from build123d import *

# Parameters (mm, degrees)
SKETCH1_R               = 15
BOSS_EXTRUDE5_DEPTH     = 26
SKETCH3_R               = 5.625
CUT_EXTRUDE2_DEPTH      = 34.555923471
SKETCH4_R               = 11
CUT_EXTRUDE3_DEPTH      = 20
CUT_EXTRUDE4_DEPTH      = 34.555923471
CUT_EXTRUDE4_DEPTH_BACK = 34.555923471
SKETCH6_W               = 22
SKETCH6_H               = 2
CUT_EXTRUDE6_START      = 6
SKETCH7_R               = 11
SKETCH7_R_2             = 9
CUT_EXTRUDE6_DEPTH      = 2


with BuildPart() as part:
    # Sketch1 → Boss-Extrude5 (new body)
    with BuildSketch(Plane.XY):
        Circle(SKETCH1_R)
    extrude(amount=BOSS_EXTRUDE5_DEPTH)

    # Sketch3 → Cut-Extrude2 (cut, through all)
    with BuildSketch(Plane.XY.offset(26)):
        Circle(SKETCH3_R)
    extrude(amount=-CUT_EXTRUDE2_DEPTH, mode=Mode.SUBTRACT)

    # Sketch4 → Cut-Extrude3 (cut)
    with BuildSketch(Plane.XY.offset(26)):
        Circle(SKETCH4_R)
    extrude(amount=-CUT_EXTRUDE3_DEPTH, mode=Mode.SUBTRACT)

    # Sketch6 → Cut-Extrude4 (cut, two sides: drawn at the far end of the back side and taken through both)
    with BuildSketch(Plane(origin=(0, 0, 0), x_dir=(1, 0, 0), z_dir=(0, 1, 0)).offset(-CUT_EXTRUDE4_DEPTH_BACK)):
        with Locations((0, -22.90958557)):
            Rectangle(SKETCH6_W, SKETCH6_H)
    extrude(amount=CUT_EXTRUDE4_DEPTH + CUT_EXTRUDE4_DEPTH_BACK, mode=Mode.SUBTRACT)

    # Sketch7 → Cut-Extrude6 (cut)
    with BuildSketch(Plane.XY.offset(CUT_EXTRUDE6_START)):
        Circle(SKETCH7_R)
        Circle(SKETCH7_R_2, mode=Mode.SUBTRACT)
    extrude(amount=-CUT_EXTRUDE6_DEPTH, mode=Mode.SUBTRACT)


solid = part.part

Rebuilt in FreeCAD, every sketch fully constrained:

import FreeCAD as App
import Part
import Sketcher
from FreeCAD import Vector


def add_polygon(sketch, points):
    """Adds a closed chain of lines whose ends are joined by coincident constraints."""
    first, n = sketch.GeometryCount, len(points)
    for a, b in zip(points, points[1:] + points[:1]):
        sketch.addGeometry(Part.LineSegment(App.Vector(*a, 0), App.Vector(*b, 0)), False)
    for i in range(n):
        sketch.addConstraint(Sketcher.Constraint("Coincident", first + i, 2, first + (i + 1) % n, 1))

doc = App.newDocument("Part")
body = doc.addObject("PartDesign::Body", "Body")

# Sketch on XY plane
sketch1 = doc.addObject("Sketcher::SketchObject", "Sketch")
body.addObject(sketch1)
sketch1.AttachmentSupport = (doc.XY_Plane, [""])
sketch1.MapMode = "FlatFace"
sketch1.addGeometry(Part.Circle(Vector(0, 0, 0), Vector(0, 0, 1), 15), False)
sketch1.addConstraint([
    Sketcher.Constraint("Coincident", 0, 3, -1, 1),
    Sketcher.Constraint("Diameter", 0, 30.0),
])
pad1 = doc.addObject("PartDesign::Pad", "Pad")
body.addObject(pad1)
pad1.Profile = sketch1
pad1.Length = 26

# Sketch on XY plane
sketch2 = doc.addObject("Sketcher::SketchObject", "Sketch001")
body.addObject(sketch2)
sketch2.AttachmentSupport = (doc.XY_Plane, [""])
sketch2.MapMode = "FlatFace"
sketch2.AttachmentOffset = App.Placement(Vector(0, 0, 26), App.Rotation())
sketch2.addGeometry(Part.Circle(Vector(0, 0, 0), Vector(0, 0, 1), 6), False)
sketch2.addConstraint([
    Sketcher.Constraint("Coincident", 0, 3, -1, 1),
    Sketcher.Constraint("Diameter", 0, 11.25),
])
pocket1 = doc.addObject("PartDesign::Pocket", "Pocket")
body.addObject(pocket1)
pocket1.Profile = sketch2
pocket1.Type = "ThroughAll"

# Sketch on XY plane
sketch3 = doc.addObject("Sketcher::SketchObject", "Sketch002")
body.addObject(sketch3)
sketch3.AttachmentSupport = (doc.XY_Plane, [""])
sketch3.MapMode = "FlatFace"
sketch3.AttachmentOffset = App.Placement(Vector(0, 0, 26), App.Rotation())
sketch3.addGeometry(Part.Circle(Vector(0, 0, 0), Vector(0, 0, 1), 11), False)
sketch3.addConstraint([
    Sketcher.Constraint("Coincident", 0, 3, -1, 1),
    Sketcher.Constraint("Diameter", 0, 22.0),
])
pocket2 = doc.addObject("PartDesign::Pocket", "Pocket001")
body.addObject(pocket2)
pocket2.Profile = sketch3
pocket2.Length = 20

# Sketch on XZ plane
sketch4 = doc.addObject("Sketcher::SketchObject", "Sketch003")
body.addObject(sketch4)
sketch4.AttachmentSupport = (doc.XZ_Plane, [""])
sketch4.MapMode = "FlatFace"
add_polygon(sketch4, [(-11, 21.9), (-11, 23.9), (11, 23.9), (11, 21.9)])  # lines 0-3
sketch4.addConstraint([
    Sketcher.Constraint("Vertical", 0),
    Sketcher.Constraint("Horizontal", 1),
    Sketcher.Constraint("Vertical", 2),
    Sketcher.Constraint("Horizontal", 3),
    Sketcher.Constraint("DistanceX", 1, 1, 1, 2, 22.0),
    Sketcher.Constraint("DistanceY", 0, 1, 0, 2, 2.0),
    Sketcher.Constraint("DistanceX", 0, 2, -1, 1, 11.0),
    Sketcher.Constraint("DistanceY", -1, 1, 0, 2, 23.909586),
])
pocket3 = doc.addObject("PartDesign::Pocket", "Pocket002")
body.addObject(pocket3)
pocket3.Profile = sketch4
pocket3.Type = "ThroughAll"
pocket3.Midplane = True

# Sketch on XY plane
sketch5 = doc.addObject("Sketcher::SketchObject", "Sketch004")
body.addObject(sketch5)
sketch5.AttachmentSupport = (doc.XY_Plane, [""])
sketch5.MapMode = "FlatFace"
sketch5.AttachmentOffset = App.Placement(Vector(0, 0, 6), App.Rotation())
sketch5.addGeometry([
    Part.Circle(Vector(0, 0, 0), Vector(0, 0, 1), 11),
    Part.Circle(Vector(0, 0, 0), Vector(0, 0, 1), 9),
], False)
sketch5.addConstraint([
    Sketcher.Constraint("Coincident", 0, 3, -1, 1),
    Sketcher.Constraint("Coincident", 1, 3, -1, 1),
    Sketcher.Constraint("Diameter", 0, 22.0),
    Sketcher.Constraint("Diameter", 1, 18.0),
])
pocket4 = doc.addObject("PartDesign::Pocket", "Pocket003")
body.addObject(pocket4)
pocket4.Profile = sketch5
pocket4.Length = 2

doc.recompute()
